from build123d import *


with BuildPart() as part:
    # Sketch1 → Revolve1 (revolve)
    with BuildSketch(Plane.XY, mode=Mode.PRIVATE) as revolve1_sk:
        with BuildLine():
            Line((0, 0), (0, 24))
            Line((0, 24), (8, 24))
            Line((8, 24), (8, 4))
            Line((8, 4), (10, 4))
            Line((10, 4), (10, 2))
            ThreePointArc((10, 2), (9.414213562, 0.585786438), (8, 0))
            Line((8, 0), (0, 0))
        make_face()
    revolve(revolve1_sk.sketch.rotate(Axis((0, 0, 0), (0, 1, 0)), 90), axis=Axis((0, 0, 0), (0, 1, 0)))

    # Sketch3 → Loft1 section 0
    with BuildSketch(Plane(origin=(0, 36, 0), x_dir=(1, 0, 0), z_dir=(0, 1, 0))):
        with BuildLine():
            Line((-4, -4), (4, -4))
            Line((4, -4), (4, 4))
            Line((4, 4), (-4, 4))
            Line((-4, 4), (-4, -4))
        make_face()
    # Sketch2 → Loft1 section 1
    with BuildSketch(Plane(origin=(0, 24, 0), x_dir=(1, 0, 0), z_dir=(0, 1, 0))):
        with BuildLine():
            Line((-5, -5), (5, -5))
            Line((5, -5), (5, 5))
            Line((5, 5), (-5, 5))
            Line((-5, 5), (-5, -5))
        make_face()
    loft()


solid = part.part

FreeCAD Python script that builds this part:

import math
import FreeCAD as App
import Part
import Sketcher

V = App.Vector
Q = App.Units.Quantity


def add_polygon(sketch, points):
    """Adds a closed chain of lines whose ends are joined by coincident constraints."""
    first, n = sketch.GeometryCount, len(points)
    for a, b in zip(points, points[1:] + points[:1]):
        sketch.addGeometry(Part.LineSegment(App.Vector(*a, 0), App.Vector(*b, 0)), False)
    for i in range(n):
        sketch.addConstraint(Sketcher.Constraint("Coincident", first + i, 2, first + (i + 1) % n, 1))

doc = App.newDocument("Part")
params = doc.addObject("Spreadsheet::Sheet", "Params")
for row, (alias, value) in enumerate([
    ("sketch1_radius", "2 mm"),
    ("sketch1_width", "8 mm"),
    ("sketch1_height", "24 mm"),
    ("revolution_angle", "360 deg"),
    ("sketch2_width", "8 mm"),
    ("sketch3_width", "10 mm"),
], start=1):
    params.set(f"A{row}", alias)
    params.set(f"B{row}", "=" + value)
    params.setAlias(f"B{row}", alias)

body = doc.addObject("PartDesign::Body", "Body")

# Sketch on XY plane
sketch1 = body.newObject("Sketcher::SketchObject", "Sketch")
sketch1.AttachmentSupport = (doc.getObject("XY_Plane"), [""])
sketch1.MapMode = "FlatFace"
sketch1.addGeometry([
    Part.LineSegment(V(0, 24, 0), V(0, 0, 0)),  # 0
    Part.LineSegment(V(0, 0, 0), V(8, 0, 0)),  # 1
    Part.ArcOfCircle(Part.Circle(V(8, 2, 0), V(0, 0, 1), 2), math.radians(-90), math.radians(0)),  # 2
    Part.LineSegment(V(10, 2, 0), V(10, 4, 0)),  # 3
    Part.LineSegment(V(10, 4, 0), V(8, 4, 0)),  # 4
    Part.LineSegment(V(8, 4, 0), V(8, 24, 0)),  # 5
    Part.LineSegment(V(8, 24, 0), V(0, 24, 0)),  # 6
], False)
sketch1.addConstraint([
    Sketcher.Constraint("Coincident", 0, 2, 1, 1),
    Sketcher.Constraint("Tangent", 1, 2, 2, 1),
    Sketcher.Constraint("Tangent", 2, 2, 3, 1),
    Sketcher.Constraint("Coincident", 3, 2, 4, 1),
    Sketcher.Constraint("Coincident", 4, 2, 5, 1),
    Sketcher.Constraint("Coincident", 5, 2, 6, 1),
    Sketcher.Constraint("Coincident", 6, 2, 0, 1),
    Sketcher.Constraint("Vertical", 0),
    Sketcher.Constraint("Horizontal", 1),
    Sketcher.Constraint("Vertical", 3),
    Sketcher.Constraint("Horizontal", 4),
    Sketcher.Constraint("Vertical", 5),
    Sketcher.Constraint("Horizontal", 6),
    Sketcher.Constraint("Coincident", 0, 2, -1, 1),
    Sketcher.Constraint("Vertical", 1, 2, 4, 2),
    Sketcher.Constraint("Equal", 4, 3),
    Sketcher.Constraint("Radius", 2, Q("2 mm")),
    Sketcher.Constraint("DistanceX", 1, 1, 1, 2, Q("8 mm")),
    Sketcher.Constraint("DistanceY", 0, 2, 0, 1, Q("24 mm")),
])
sketch1.setExpression("Constraints[16]", "Params.sketch1_radius")
sketch1.setExpression("Constraints[17]", "Params.sketch1_width")
sketch1.setExpression("Constraints[18]", "Params.sketch1_height")
revolution = body.newObject("PartDesign::Revolution", "Revolution")
revolution.Profile = sketch1
revolution.ReferenceAxis = (sketch1, ["V_Axis"])
revolution.setExpression("Angle", "Params.revolution_angle")

# Sketch on XZ plane
sketch2 = body.newObject("Sketcher::SketchObject", "Sketch001")
sketch2.AttachmentSupport = (doc.getObject("XZ_Plane"), [""])
sketch2.MapMode = "FlatFace"
sketch2.AttachmentOffset = App.Placement(V(0, 0, -36), App.Rotation())
add_polygon(sketch2, [(-4, 4), (4, 4), (4, -4), (-4, -4)])  # lines 0-3
sketch2.addConstraint([
    Sketcher.Constraint("Horizontal", 0),
    Sketcher.Constraint("Vertical", 1),
    Sketcher.Constraint("Horizontal", 2),
    Sketcher.Constraint("Vertical", 3),
    Sketcher.Constraint("Symmetric", 0, 2, 2, 2, -1, 1),
    Sketcher.Constraint("Equal", 2, 1),
    Sketcher.Constraint("DistanceX", 0, 1, 0, 2, Q("8 mm")),
])
sketch2.setExpression("Constraints[10]", "Params.sketch2_width")

# Sketch on XZ plane
sketch3 = body.newObject("Sketcher::SketchObject", "Sketch002")
sketch3.AttachmentSupport = (doc.getObject("XZ_Plane"), [""])
sketch3.MapMode = "FlatFace"
sketch3.AttachmentOffset = App.Placement(V(0, 0, -24), App.Rotation())
add_polygon(sketch3, [(-5, 5), (5, 5), (5, -5), (-5, -5)])  # lines 0-3
sketch3.addConstraint([
    Sketcher.Constraint("Horizontal", 0),
    Sketcher.Constraint("Vertical", 1),
    Sketcher.Constraint("Horizontal", 2),
    Sketcher.Constraint("Vertical", 3),
    Sketcher.Constraint("Symmetric", 0, 2, 2, 2, -1, 1),
    Sketcher.Constraint("Equal", 2, 1),
    Sketcher.Constraint("DistanceX", 0, 1, 0, 2, Q("10 mm")),
])
sketch3.setExpression("Constraints[10]", "Params.sketch3_width")

additiveloft = body.newObject("PartDesign::AdditiveLoft", "AdditiveLoft")
additiveloft.Profile = sketch2
additiveloft.Sections = [sketch3]

doc.recompute()
